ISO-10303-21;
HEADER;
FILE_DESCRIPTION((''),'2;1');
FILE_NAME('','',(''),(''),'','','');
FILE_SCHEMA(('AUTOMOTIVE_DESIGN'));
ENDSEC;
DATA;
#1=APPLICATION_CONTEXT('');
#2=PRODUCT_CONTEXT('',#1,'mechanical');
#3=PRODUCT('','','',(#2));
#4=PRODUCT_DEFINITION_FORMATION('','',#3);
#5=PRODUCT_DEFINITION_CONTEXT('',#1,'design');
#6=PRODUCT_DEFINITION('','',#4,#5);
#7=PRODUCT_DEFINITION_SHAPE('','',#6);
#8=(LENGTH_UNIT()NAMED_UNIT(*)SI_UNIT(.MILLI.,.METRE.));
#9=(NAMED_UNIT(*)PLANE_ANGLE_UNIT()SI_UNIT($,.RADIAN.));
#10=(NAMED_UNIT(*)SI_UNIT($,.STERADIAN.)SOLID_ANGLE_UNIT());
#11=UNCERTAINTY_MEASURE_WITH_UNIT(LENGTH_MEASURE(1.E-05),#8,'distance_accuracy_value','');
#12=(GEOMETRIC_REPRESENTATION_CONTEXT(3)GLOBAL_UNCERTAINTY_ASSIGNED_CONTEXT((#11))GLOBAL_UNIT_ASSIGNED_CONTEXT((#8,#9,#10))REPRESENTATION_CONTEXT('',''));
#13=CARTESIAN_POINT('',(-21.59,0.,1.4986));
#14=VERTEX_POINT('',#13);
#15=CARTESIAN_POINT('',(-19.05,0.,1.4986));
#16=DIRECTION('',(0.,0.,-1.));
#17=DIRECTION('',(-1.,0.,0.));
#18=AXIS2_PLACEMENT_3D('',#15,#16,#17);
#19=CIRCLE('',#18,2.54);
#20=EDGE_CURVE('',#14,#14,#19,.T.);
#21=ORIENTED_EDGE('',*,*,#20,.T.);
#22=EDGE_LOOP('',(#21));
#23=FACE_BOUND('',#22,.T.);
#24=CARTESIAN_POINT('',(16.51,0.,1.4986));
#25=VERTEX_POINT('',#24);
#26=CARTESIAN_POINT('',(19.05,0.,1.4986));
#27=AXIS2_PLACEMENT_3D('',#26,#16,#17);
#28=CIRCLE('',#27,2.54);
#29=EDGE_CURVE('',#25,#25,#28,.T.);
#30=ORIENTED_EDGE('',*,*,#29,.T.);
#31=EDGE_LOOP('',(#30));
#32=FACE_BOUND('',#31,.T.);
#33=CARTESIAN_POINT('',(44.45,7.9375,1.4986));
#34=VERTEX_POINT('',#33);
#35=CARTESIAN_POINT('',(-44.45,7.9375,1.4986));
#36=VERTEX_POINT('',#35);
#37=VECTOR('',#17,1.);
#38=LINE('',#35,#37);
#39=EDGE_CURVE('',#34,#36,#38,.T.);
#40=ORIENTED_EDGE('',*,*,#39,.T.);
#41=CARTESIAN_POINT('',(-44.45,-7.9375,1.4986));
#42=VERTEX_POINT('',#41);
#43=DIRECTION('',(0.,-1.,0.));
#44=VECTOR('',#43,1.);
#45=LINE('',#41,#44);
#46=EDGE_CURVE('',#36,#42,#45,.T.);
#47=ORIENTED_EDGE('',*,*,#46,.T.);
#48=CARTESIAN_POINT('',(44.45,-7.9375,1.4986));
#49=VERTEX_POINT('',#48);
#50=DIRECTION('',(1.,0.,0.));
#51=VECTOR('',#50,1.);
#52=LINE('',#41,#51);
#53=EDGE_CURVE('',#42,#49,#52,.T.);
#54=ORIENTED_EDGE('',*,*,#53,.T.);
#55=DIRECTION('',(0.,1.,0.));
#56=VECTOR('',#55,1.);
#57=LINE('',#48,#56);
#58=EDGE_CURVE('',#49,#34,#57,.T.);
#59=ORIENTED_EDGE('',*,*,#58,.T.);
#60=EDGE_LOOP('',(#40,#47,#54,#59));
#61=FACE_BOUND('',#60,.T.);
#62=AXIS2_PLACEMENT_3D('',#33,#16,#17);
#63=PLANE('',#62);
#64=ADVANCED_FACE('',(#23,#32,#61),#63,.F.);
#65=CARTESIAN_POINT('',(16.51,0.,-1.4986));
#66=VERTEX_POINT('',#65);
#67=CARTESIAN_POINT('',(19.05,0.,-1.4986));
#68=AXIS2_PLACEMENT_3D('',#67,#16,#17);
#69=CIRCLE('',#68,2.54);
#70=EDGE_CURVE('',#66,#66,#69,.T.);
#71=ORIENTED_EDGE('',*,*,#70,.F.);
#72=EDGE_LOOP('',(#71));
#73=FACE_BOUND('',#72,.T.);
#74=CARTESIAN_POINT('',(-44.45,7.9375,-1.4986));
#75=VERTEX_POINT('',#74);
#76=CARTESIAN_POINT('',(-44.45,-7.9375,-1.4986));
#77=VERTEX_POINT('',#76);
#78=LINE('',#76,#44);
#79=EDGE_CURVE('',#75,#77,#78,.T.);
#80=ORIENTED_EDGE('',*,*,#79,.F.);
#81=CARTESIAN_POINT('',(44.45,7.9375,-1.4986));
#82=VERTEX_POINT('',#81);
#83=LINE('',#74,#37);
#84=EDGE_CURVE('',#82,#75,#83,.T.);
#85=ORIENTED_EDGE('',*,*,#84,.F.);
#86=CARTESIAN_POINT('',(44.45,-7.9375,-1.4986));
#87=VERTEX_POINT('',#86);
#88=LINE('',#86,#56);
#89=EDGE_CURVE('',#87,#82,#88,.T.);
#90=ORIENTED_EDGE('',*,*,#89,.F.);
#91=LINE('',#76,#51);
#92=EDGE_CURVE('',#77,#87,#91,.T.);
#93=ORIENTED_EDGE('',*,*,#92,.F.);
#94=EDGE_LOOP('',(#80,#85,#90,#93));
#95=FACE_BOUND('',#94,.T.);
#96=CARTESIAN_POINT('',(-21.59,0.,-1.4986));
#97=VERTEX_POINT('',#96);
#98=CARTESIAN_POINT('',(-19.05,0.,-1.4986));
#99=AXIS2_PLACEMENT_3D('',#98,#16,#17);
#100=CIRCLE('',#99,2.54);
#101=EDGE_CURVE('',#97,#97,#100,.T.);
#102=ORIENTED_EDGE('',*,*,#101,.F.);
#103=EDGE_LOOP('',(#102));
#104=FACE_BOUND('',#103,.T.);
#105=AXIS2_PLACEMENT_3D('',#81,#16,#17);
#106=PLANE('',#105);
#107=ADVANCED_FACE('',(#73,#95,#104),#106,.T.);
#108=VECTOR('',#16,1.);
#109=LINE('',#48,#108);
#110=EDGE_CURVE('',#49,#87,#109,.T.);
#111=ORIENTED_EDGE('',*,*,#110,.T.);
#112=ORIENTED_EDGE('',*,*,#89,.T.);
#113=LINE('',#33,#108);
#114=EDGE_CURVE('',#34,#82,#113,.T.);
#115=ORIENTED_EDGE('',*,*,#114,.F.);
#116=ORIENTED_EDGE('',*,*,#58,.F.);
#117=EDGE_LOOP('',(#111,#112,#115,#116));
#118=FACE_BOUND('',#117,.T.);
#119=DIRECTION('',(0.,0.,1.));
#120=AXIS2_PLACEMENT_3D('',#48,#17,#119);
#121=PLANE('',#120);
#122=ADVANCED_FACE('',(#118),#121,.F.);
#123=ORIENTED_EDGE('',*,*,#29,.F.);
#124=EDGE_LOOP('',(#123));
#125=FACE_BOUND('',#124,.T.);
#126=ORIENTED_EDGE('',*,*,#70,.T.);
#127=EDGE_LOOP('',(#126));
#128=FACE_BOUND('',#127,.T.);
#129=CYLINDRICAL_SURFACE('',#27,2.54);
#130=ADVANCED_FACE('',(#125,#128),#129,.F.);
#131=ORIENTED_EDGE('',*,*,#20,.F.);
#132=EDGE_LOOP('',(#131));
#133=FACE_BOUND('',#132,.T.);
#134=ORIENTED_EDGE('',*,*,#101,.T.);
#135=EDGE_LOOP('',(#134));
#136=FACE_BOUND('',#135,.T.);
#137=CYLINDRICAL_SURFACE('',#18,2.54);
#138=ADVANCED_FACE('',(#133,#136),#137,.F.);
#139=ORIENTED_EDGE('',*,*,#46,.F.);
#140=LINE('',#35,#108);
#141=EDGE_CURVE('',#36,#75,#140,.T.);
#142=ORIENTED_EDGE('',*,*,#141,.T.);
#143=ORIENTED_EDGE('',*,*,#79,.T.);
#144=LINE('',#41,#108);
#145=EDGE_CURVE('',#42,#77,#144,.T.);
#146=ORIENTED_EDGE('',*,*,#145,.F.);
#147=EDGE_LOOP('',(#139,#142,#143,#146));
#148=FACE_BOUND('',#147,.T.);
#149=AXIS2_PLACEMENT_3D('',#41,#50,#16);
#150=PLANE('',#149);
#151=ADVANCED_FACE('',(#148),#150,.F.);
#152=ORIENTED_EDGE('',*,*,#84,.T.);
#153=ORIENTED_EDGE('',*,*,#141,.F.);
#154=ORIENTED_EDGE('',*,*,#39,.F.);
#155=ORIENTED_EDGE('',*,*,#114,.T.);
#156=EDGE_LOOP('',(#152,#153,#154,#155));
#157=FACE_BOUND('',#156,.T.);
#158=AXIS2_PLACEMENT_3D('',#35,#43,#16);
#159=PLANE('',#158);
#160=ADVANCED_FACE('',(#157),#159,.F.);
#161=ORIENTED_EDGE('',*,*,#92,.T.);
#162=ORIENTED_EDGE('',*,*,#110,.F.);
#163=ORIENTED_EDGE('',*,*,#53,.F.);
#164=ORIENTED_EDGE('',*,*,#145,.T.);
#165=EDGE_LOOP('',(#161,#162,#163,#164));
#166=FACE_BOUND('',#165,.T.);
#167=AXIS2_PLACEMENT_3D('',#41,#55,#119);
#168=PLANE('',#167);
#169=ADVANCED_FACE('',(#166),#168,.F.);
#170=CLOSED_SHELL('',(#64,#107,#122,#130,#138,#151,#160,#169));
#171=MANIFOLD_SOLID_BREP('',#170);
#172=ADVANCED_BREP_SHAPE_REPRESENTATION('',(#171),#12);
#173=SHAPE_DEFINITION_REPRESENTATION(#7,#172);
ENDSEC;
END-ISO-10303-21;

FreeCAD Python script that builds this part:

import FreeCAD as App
import Part
import Sketcher
Q = App.Units.Quantity


def add_polygon(sketch, points):
    """Adds a closed chain of lines whose ends are joined by coincident constraints."""
    first, n = sketch.GeometryCount, len(points)
    for a, b in zip(points, points[1:] + points[:1]):
        sketch.addGeometry(Part.LineSegment(App.Vector(*a, 0), App.Vector(*b, 0)), False)
    for i in range(n):
        sketch.addConstraint(Sketcher.Constraint("Coincident", first + i, 2, first + (i + 1) % n, 1))

doc = App.newDocument("Part")
params = doc.addObject("Spreadsheet::Sheet", "Params")
for row, (alias, value) in enumerate([
    ("sketch1_width", "3.5 in"),
    ("sketch1_height", "0.625 in"),
    ("pad1_length", "0.118 in"),
    ("sketch2_diameter", "0.2 in"),
], start=1):
    params.set(f"A{row}", alias)
    params.set(f"B{row}", "=" + value)
    params.setAlias(f"B{row}", alias)

body = doc.addObject("PartDesign::Body", "Body")

# Sketch on XY plane
sketch1 = body.newObject("Sketcher::SketchObject", "Sketch")
sketch1.AttachmentSupport = (doc.getObject("XY_Plane"), [""])
sketch1.MapMode = "FlatFace"
add_polygon(sketch1, [(-44, 8), (-44, -8), (44, -8), (44, 8)])  # lines 0-3
sketch1.addConstraint([
    Sketcher.Constraint("Vertical", 0),
    Sketcher.Constraint("Horizontal", 1),
    Sketcher.Constraint("Vertical", 2),
    Sketcher.Constraint("Horizontal", 3),
    Sketcher.Constraint("Symmetric", 0, 2, 2, 2, -1, 1),
    Sketcher.Constraint("DistanceX", 1, 1, 1, 2, Q("3.5 in")),
    Sketcher.Constraint("DistanceY", 0, 2, 0, 1, Q("0.625 in")),
])
sketch1.setExpression("Constraints[9]", "Params.sketch1_width")
sketch1.setExpression("Constraints[10]", "Params.sketch1_height")
pad1 = body.newObject("PartDesign::Pad", "Pad")
pad1.Profile = sketch1
pad1.setExpression("Length", "Params.pad1_length")
pad1.Midplane = True

# Sketch on XY plane
sketch2 = body.newObject("Sketcher::SketchObject", "Sketch001")
sketch2.AttachmentSupport = (doc.getObject("XY_Plane"), [""])
sketch2.MapMode = "FlatFace"
sketch2.AttachmentOffset = App.Placement(App.Vector(0, 0, -0.059 * 25.4), App.Rotation())
sketch2.addGeometry([
    Part.Circle(App.Vector(19.1, 0, 0), App.Vector(0, 0, 1), 2.5),
    Part.Circle(App.Vector(-19.1, 0, 0), App.Vector(0, 0, 1), 2.5),
], False)
sketch2.addConstraint([
    Sketcher.Constraint("Equal", 0, 1),
    Sketcher.Constraint("Symmetric", 0, 3, 1, 3, -1, 1),
    Sketcher.Constraint("PointOnObject", 0, 3, -1),
    Sketcher.Constraint("Diameter", 0, Q("0.2 in")),
    Sketcher.Constraint("DistanceX", 1, 3, 0, 3, Q("1.5 in")),
])
sketch2.setExpression("Constraints[3]", "Params.sketch2_diameter")
pocket1 = body.newObject("PartDesign::Pocket", "Pocket")
pocket1.Profile = sketch2
pocket1.Type = "ThroughAll"
pocket1.Reversed = True

doc.recompute()
